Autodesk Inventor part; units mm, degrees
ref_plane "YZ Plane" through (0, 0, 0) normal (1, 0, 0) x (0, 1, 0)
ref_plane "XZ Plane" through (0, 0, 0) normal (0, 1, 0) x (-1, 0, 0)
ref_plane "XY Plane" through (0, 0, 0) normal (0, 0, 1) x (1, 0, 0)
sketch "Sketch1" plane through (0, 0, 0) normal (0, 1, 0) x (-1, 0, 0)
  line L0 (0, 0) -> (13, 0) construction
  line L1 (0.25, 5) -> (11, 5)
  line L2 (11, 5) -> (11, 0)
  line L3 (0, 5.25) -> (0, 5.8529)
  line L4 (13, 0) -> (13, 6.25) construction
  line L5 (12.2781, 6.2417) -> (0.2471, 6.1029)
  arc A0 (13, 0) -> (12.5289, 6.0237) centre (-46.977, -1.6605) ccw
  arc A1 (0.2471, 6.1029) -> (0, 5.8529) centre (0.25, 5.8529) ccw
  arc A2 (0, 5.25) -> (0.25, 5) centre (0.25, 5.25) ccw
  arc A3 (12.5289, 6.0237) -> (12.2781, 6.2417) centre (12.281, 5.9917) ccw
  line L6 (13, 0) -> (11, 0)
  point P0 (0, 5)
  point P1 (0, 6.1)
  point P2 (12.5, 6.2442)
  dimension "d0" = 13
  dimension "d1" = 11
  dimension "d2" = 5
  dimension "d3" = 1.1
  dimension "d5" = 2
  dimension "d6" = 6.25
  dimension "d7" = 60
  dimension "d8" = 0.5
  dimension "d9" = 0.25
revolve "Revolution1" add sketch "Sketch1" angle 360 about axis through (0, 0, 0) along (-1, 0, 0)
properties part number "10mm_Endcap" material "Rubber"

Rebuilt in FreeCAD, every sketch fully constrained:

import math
import FreeCAD as App
import Part
import Sketcher
from FreeCAD import Vector
Q = App.Units.Quantity

doc = App.newDocument("Part")
body = doc.addObject("PartDesign::Body", "Body")

# Sketch on XZ plane
sketch1 = body.newObject("Sketcher::SketchObject", "Sketch")
sketch1.AttachmentSupport = (doc.getObject("XZ_Plane"), [""])
sketch1.MapMode = "FlatFace"
sketch1.addGeometry([
    Part.ArcOfCircle(Part.Circle(Vector(-0.25, 5.25, 0), Vector(0, 0, 1), 0.25), math.radians(-90), math.radians(0)),  # 0
    Part.LineSegment(Vector(-0.25, 5, 0), Vector(-11, 5, 0)),  # 1
    Part.LineSegment(Vector(-11, 5, 0), Vector(-11, 0, 0)),  # 2
    Part.LineSegment(Vector(-11, 0, 0), Vector(-13, 0, 0)),  # 3
    Part.ArcOfCircle(Part.Circle(Vector(46.98, -1.66, 0), Vector(0, 0, 1), 60), math.radians(172.64), math.radians(178.41)),  # 4
    Part.ArcOfCircle(Part.Circle(Vector(-12.28, 5.99, 0), Vector(0, 0, 1), 0.25), math.radians(89), math.radians(173)),  # 5
    Part.LineSegment(Vector(-12.28, 6.24, 0), Vector(-0.25, 6.1, 0)),  # 6
    Part.ArcOfCircle(Part.Circle(Vector(-0.25, 5.85, 0), Vector(0, 0, 1), 0.25), math.radians(0), math.radians(89)),  # 7
    Part.LineSegment(Vector(0, 5.85, 0), Vector(0, 5.25, 0)),  # 8
], False)
sketch1.addConstraint([
    Sketcher.Constraint("Tangent", 0, 1, 1, 1),
    Sketcher.Constraint("Coincident", 1, 2, 2, 1),
    Sketcher.Constraint("Coincident", 2, 2, 3, 1),
    Sketcher.Constraint("Coincident", 3, 2, 4, 2),
    Sketcher.Constraint("Tangent", 4, 1, 5, 2),
    Sketcher.Constraint("Tangent", 5, 1, 6, 1),
    Sketcher.Constraint("Tangent", 6, 2, 7, 2),
    Sketcher.Constraint("Tangent", 7, 1, 8, 1),
    Sketcher.Constraint("Tangent", 8, 2, 0, 2),
    Sketcher.Constraint("Horizontal", 1),
    Sketcher.Constraint("Vertical", 2),
    Sketcher.Constraint("Horizontal", 3),
    Sketcher.Constraint("Vertical", 8),
    Sketcher.Constraint("Equal", 0, 5),
    Sketcher.Constraint("Equal", 5, 7),
    Sketcher.Constraint("PointOnObject", 2, 2, -1),
    Sketcher.Constraint("PointOnObject", 7, 1, -2),
    Sketcher.Constraint("DistanceX", 3, 2, 3, 1, Q("2 mm")),
    Sketcher.Constraint("DistanceY", 2, 2, 2, 1, Q("5 mm")),
    Sketcher.Constraint("Radius", 0, Q("0.25 mm")),
    Sketcher.Constraint("DistanceX", 1, 2, -1, 1, Q("11 mm")),
    Sketcher.Constraint("Angle", 6, Q("-0.661 deg")),
    Sketcher.Constraint("Radius", 4, Q("60.0042 mm")),
    Sketcher.Constraint("DistanceY", 8, 2, 8, 1, Q("0.603 mm")),
    Sketcher.Constraint("DistanceX", 5, 3, -1, 1, Q("12.281 mm")),
])
revolution = body.newObject("PartDesign::Revolution", "Revolution")
revolution.Profile = sketch1
revolution.ReferenceAxis = (sketch1, ["H_Axis"])
revolution.Angle = 360

doc.recompute()
